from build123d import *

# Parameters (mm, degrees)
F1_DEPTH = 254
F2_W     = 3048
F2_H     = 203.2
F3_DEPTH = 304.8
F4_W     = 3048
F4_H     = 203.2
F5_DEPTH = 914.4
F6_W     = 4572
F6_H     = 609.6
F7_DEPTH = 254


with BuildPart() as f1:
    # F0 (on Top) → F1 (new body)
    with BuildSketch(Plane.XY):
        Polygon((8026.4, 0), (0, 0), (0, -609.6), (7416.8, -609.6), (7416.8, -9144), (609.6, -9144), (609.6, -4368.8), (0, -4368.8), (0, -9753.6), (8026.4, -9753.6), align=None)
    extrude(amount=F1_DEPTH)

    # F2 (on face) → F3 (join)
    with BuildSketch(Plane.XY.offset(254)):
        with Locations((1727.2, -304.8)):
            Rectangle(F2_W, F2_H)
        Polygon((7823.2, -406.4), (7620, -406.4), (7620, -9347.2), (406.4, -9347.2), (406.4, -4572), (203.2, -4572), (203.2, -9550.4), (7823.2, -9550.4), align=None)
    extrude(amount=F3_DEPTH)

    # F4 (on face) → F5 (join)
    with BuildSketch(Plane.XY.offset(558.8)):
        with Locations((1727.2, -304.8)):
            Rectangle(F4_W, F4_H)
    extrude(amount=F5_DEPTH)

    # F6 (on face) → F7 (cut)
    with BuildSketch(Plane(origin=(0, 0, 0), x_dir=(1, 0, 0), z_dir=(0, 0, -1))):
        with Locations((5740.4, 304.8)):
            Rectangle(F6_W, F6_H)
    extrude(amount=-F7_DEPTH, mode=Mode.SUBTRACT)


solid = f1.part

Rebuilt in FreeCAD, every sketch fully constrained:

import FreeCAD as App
import Part
import Sketcher

V = App.Vector
Q = App.Units.Quantity


def add_polygon(sketch, points):
    """Adds a closed chain of lines whose ends are joined by coincident constraints."""
    first, n = sketch.GeometryCount, len(points)
    for a, b in zip(points, points[1:] + points[:1]):
        sketch.addGeometry(Part.LineSegment(App.Vector(*a, 0), App.Vector(*b, 0)), False)
    for i in range(n):
        sketch.addConstraint(Sketcher.Constraint("Coincident", first + i, 2, first + (i + 1) % n, 1))

doc = App.newDocument("Part")
params = doc.addObject("Spreadsheet::Sheet", "Params")
for row, (alias, value) in enumerate([
    ("sketch1_width", "316 in"),
    ("sketch1_width2", "292 in"),
    ("sketch1_width3", "268 in"),
    ("sketch1_height", "336 in"),
    ("sketch1_height2", "188 in"),
    ("pad1_length", "10 in"),
    ("sketch2_width", "120 in"),
    ("sketch2_width2", "8 in"),
    ("sketch2_width3", "284 in"),
    ("sketch2_height", "352 in"),
    ("sketch2_height2", "188 in"),
    ("pad2_length", "12 in"),
    ("sketch3_width", "120 in"),
    ("sketch3_height", "8 in"),
    ("pad3_length", "36 in"),
    ("sketch4_width", "180 in"),
    ("sketch4_height", "24 in"),
    ("pocket1_length", "10 in"),
], start=1):
    params.set(f"A{row}", alias)
    params.set(f"B{row}", "=" + value)
    params.setAlias(f"B{row}", alias)

body = doc.addObject("PartDesign::Body", "Body")
body.AllowCompound = True

# Sketch on XY plane
sketch1 = doc.addObject("Sketcher::SketchObject", "Sketch")
body.addObject(sketch1)
sketch1.AttachmentSupport = (doc.XY_Plane, [""])
sketch1.MapMode = "FlatFace"
add_polygon(sketch1, [(8026.4, 0), (0, 0), (0, -609.6), (7416.8, -609.6), (7416.8, -9144), (609.6, -9144), (609.6, -4368.8), (0, -4368.8), (0, -9753.6), (8026.4, -9753.6)])  # lines 0-9
sketch1.addConstraint([
    Sketcher.Constraint("Horizontal", 0),
    Sketcher.Constraint("Vertical", 1),
    Sketcher.Constraint("Horizontal", 2),
    Sketcher.Constraint("Vertical", 3),
    Sketcher.Constraint("Horizontal", 4),
    Sketcher.Constraint("Vertical", 5),
    Sketcher.Constraint("Horizontal", 6),
    Sketcher.Constraint("Vertical", 7),
    Sketcher.Constraint("Horizontal", 8),
    Sketcher.Constraint("Vertical", 9),
    Sketcher.Constraint("Coincident", 0, 2, -1, 1),
    Sketcher.Constraint("PointOnObject", 6, 2, -2),
    Sketcher.Constraint("Equal", 6, 1),
    Sketcher.Constraint("DistanceX", 0, 2, 0, 1, Q("316 in")),
    Sketcher.Constraint("DistanceX", 2, 1, 2, 2, Q("292 in")),
    Sketcher.Constraint("DistanceX", 4, 2, 4, 1, Q("268 in")),
    Sketcher.Constraint("DistanceY", 3, 2, 3, 1, Q("336 in")),
    Sketcher.Constraint("DistanceY", 5, 1, 5, 2, Q("188 in")),
    Sketcher.Constraint("DistanceY", 7, 2, 7, 1, Q("212 in")),
])
sketch1.setExpression("Constraints[23]", "Params.sketch1_width")
sketch1.setExpression("Constraints[24]", "Params.sketch1_width2")
sketch1.setExpression("Constraints[25]", "Params.sketch1_width3")
sketch1.setExpression("Constraints[26]", "Params.sketch1_height")
sketch1.setExpression("Constraints[27]", "Params.sketch1_height2")
pad1 = doc.addObject("PartDesign::Pad", "Pad")
body.addObject(pad1)
pad1.Profile = sketch1
pad1.setExpression("Length", "Params.pad1_length")

# Sketch on XY plane
sketch2 = doc.addObject("Sketcher::SketchObject", "Sketch001")
body.addObject(sketch2)
sketch2.AttachmentSupport = (doc.XY_Plane, [""])
sketch2.MapMode = "FlatFace"
sketch2.AttachmentOffset = App.Placement(V(0, 0, 10 * 25.4), App.Rotation())
add_polygon(sketch2, [(203.2, -203.2), (203.2, -406.4), (3251.2, -406.4), (3251.2, -203.2)])  # lines 0-3
add_polygon(sketch2, [(7823.2, -406.4), (7620, -406.4), (7620, -9347.2), (406.4, -9347.2), (406.4, -4572), (203.2, -4572), (203.2, -9550.4), (7823.2, -9550.4)])  # lines 4-11
sketch2.addConstraint([
    Sketcher.Constraint("Vertical", 0),
    Sketcher.Constraint("Horizontal", 1),
    Sketcher.Constraint("Vertical", 2),
    Sketcher.Constraint("Horizontal", 3),
    Sketcher.Constraint("Horizontal", 4),
    Sketcher.Constraint("Vertical", 5),
    Sketcher.Constraint("Horizontal", 6),
    Sketcher.Constraint("Vertical", 7),
    Sketcher.Constraint("Horizontal", 8),
    Sketcher.Constraint("Vertical", 9),
    Sketcher.Constraint("Horizontal", 10),
    Sketcher.Constraint("Vertical", 11),
    Sketcher.Constraint("Horizontal", 1, 2, 4, 2),
    Sketcher.Constraint("Vertical", 3, 2, 8, 2),
    Sketcher.Constraint("Equal", 4, 8),
    Sketcher.Constraint("Equal", 8, 0),
    Sketcher.Constraint("DistanceX", 1, 1, 1, 2, Q("120 in")),
    Sketcher.Constraint("DistanceX", 4, 2, 4, 1, Q("8 in")),
    Sketcher.Constraint("DistanceX", 6, 2, 6, 1, Q("284 in")),
    Sketcher.Constraint("DistanceY", 5, 2, 5, 1, Q("352 in")),
    Sketcher.Constraint("DistanceY", 7, 1, 7, 2, Q("188 in")),
    Sketcher.Constraint("DistanceY", 9, 2, 9, 1, Q("196 in")),
    Sketcher.Constraint("DistanceX", -1, 1, 0, 2, Q("8 in")),
    Sketcher.Constraint("DistanceY", 0, 2, -1, 1, Q("16 in")),
])
sketch2.setExpression("Constraints[28]", "Params.sketch2_width")
sketch2.setExpression("Constraints[29]", "Params.sketch2_width2")
sketch2.setExpression("Constraints[30]", "Params.sketch2_width3")
sketch2.setExpression("Constraints[31]", "Params.sketch2_height")
sketch2.setExpression("Constraints[32]", "Params.sketch2_height2")
pad2 = doc.addObject("PartDesign::Pad", "Pad001")
body.addObject(pad2)
pad2.Profile = sketch2
pad2.setExpression("Length", "Params.pad2_length")

# Sketch on XY plane
sketch3 = doc.addObject("Sketcher::SketchObject", "Sketch002")
body.addObject(sketch3)
sketch3.AttachmentSupport = (doc.XY_Plane, [""])
sketch3.MapMode = "FlatFace"
sketch3.AttachmentOffset = App.Placement(V(0, 0, 22 * 25.4), App.Rotation())
add_polygon(sketch3, [(203.2, -203.2), (203.2, -406.4), (3251.2, -406.4), (3251.2, -203.2)])  # lines 0-3
sketch3.addConstraint([
    Sketcher.Constraint("Vertical", 0),
    Sketcher.Constraint("Horizontal", 1),
    Sketcher.Constraint("Vertical", 2),
    Sketcher.Constraint("Horizontal", 3),
    Sketcher.Constraint("DistanceX", 1, 1, 1, 2, Q("120 in")),
    Sketcher.Constraint("DistanceY", 0, 2, 0, 1, Q("8 in")),
    Sketcher.Constraint("DistanceX", -1, 1, 0, 2, Q("8 in")),
    Sketcher.Constraint("DistanceY", 0, 2, -1, 1, Q("16 in")),
])
sketch3.setExpression("Constraints[8]", "Params.sketch3_width")
sketch3.setExpression("Constraints[9]", "Params.sketch3_height")
pad3 = doc.addObject("PartDesign::Pad", "Pad002")
body.addObject(pad3)
pad3.Profile = sketch3
pad3.setExpression("Length", "Params.pad3_length")

# Sketch on XY plane
sketch4 = doc.addObject("Sketcher::SketchObject", "Sketch003")
body.addObject(sketch4)
sketch4.AttachmentSupport = (doc.XY_Plane, [""])
sketch4.MapMode = "FlatFace"
add_polygon(sketch4, [(3454.4, -609.6), (3454.4, 0), (8026.4, 0), (8026.4, -609.6)])  # lines 0-3
sketch4.addConstraint([
    Sketcher.Constraint("Vertical", 0),
    Sketcher.Constraint("Horizontal", 1),
    Sketcher.Constraint("Vertical", 2),
    Sketcher.Constraint("Horizontal", 3),
    Sketcher.Constraint("PointOnObject", 0, 2, -1),
    Sketcher.Constraint("DistanceX", 1, 1, 1, 2, Q("180 in")),
    Sketcher.Constraint("DistanceY", 0, 1, 0, 2, Q("24 in")),
    Sketcher.Constraint("DistanceX", -1, 1, 0, 2, Q("136 in")),
])
sketch4.setExpression("Constraints[9]", "Params.sketch4_width")
sketch4.setExpression("Constraints[10]", "Params.sketch4_height")
pocket1 = doc.addObject("PartDesign::Pocket", "Pocket")
body.addObject(pocket1)
pocket1.Profile = sketch4
pocket1.setExpression("Length", "Params.pocket1_length")
pocket1.Reversed = True

doc.recompute()
